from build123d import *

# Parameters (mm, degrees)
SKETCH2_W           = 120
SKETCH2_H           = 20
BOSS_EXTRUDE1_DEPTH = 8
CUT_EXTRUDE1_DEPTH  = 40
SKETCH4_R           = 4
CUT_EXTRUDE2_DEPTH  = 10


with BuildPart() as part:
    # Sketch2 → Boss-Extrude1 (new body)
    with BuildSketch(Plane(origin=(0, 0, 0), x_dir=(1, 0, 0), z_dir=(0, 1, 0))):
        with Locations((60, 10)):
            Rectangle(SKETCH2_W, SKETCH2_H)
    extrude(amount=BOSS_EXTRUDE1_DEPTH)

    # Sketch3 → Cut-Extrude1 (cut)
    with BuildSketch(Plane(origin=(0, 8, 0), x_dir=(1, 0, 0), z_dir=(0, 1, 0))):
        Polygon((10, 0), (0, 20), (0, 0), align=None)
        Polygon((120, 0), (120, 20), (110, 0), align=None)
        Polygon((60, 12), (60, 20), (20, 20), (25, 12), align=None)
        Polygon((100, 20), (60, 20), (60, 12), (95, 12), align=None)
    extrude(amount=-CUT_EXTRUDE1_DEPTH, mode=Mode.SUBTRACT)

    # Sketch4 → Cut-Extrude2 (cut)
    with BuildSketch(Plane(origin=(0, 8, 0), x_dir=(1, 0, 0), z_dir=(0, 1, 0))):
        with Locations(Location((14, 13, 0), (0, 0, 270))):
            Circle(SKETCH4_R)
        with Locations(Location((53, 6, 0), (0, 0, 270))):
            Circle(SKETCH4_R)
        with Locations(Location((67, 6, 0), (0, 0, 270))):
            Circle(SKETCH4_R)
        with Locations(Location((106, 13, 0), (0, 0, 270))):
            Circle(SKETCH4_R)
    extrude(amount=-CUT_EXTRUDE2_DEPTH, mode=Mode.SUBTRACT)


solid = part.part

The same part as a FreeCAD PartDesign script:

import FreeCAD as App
import Part
import Sketcher

V = App.Vector
Q = App.Units.Quantity

doc = App.newDocument("Part")
params = doc.addObject("Spreadsheet::Sheet", "Params")
for row, (alias, value) in enumerate([
    ("sketch1_width", "120 mm"),
    ("sketch1_height", "20 mm"),
    ("pad1_length", "8 mm"),
    ("sketch2_width", "10 mm"),
    ("sketch2_width2", "70 mm"),
    ("sketch2_width3", "80 mm"),
    ("sketch2_height", "20 mm"),
    ("pocket1_length", "40 mm"),
    ("sketch3_diameter", "8 mm"),
    ("pocket2_length", "10 mm"),
], start=1):
    params.set(f"A{row}", alias)
    params.set(f"B{row}", "=" + value)
    params.setAlias(f"B{row}", alias)

body = doc.addObject("PartDesign::Body", "Body")

sketch1 = doc.addObject("Sketcher::SketchObject", "Sketch")
body.addObject(sketch1)
sketch1.AttachmentSupport = (doc.XZ_Plane, [""])
sketch1.MapMode = "FlatFace"
sketch1.addGeometry(Part.LineSegment(V(0, -20, 0), V(0, 0, 0)), False)
sketch1.addGeometry(Part.LineSegment(V(0, 0, 0), V(120, 0, 0)), False)
sketch1.addGeometry(Part.LineSegment(V(120, 0, 0), V(120, -20, 0)), False)
sketch1.addGeometry(Part.LineSegment(V(120, -20, 0), V(0, -20, 0)), False)
sketch1.addConstraint(Sketcher.Constraint("Coincident", 0, 2, 1, 1))
sketch1.addConstraint(Sketcher.Constraint("Coincident", 1, 2, 2, 1))
sketch1.addConstraint(Sketcher.Constraint("Coincident", 2, 2, 3, 1))
sketch1.addConstraint(Sketcher.Constraint("Coincident", 3, 2, 0, 1))
sketch1.addConstraint(Sketcher.Constraint("Vertical", 0))
sketch1.addConstraint(Sketcher.Constraint("Horizontal", 1))
sketch1.addConstraint(Sketcher.Constraint("Vertical", 2))
sketch1.addConstraint(Sketcher.Constraint("Horizontal", 3))
sketch1.addConstraint(Sketcher.Constraint("Coincident", 0, 2, -1, 1))
sketch1.addConstraint(Sketcher.Constraint("DistanceX", 1, 1, 1, 2, Q("120 mm")))
sketch1.addConstraint(Sketcher.Constraint("DistanceY", 0, 1, 0, 2, Q("20 mm")))
sketch1.setExpression("Constraints[9]", "Params.sketch1_width")
sketch1.setExpression("Constraints[10]", "Params.sketch1_height")
pad1 = doc.addObject("PartDesign::Pad", "Pad")
body.addObject(pad1)
pad1.Profile = sketch1
pad1.setExpression("Length", "Params.pad1_length")
pad1.Reversed = True

sketch2 = doc.addObject("Sketcher::SketchObject", "Sketch001")
body.addObject(sketch2)
sketch2.AttachmentSupport = (doc.XZ_Plane, [""])
sketch2.MapMode = "FlatFace"
sketch2.AttachmentOffset = App.Placement(V(0, 0, -8), App.Rotation())
sketch2.addGeometry(Part.LineSegment(V(10, 0, 0), V(0, -20, 0)), False)
sketch2.addGeometry(Part.LineSegment(V(0, -20, 0), V(0, 0, 0)), False)
sketch2.addGeometry(Part.LineSegment(V(0, 0, 0), V(10, 0, 0)), False)
sketch2.addGeometry(Part.LineSegment(V(120, 0, 0), V(120, -20, 0)), False)
sketch2.addGeometry(Part.LineSegment(V(120, -20, 0), V(110, 0, 0)), False)
sketch2.addGeometry(Part.LineSegment(V(110, 0, 0), V(120, 0, 0)), False)
sketch2.addGeometry(Part.LineSegment(V(20, -20, 0), V(25, -12, 0)), False)
sketch2.addGeometry(Part.LineSegment(V(25, -12, 0), V(95, -12, 0)), False)
sketch2.addGeometry(Part.LineSegment(V(95, -12, 0), V(100, -20, 0)), False)
sketch2.addGeometry(Part.LineSegment(V(100, -20, 0), V(20, -20, 0)), False)
sketch2.addConstraint(Sketcher.Constraint("Coincident", 0, 2, 1, 1))
sketch2.addConstraint(Sketcher.Constraint("Coincident", 1, 2, 2, 1))
sketch2.addConstraint(Sketcher.Constraint("Coincident", 2, 2, 0, 1))
sketch2.addConstraint(Sketcher.Constraint("Coincident", 3, 2, 4, 1))
sketch2.addConstraint(Sketcher.Constraint("Coincident", 4, 2, 5, 1))
sketch2.addConstraint(Sketcher.Constraint("Coincident", 5, 2, 3, 1))
sketch2.addConstraint(Sketcher.Constraint("Coincident", 6, 2, 7, 1))
sketch2.addConstraint(Sketcher.Constraint("Coincident", 7, 2, 8, 1))
sketch2.addConstraint(Sketcher.Constraint("Coincident", 8, 2, 9, 1))
sketch2.addConstraint(Sketcher.Constraint("Coincident", 9, 2, 6, 1))
sketch2.addConstraint(Sketcher.Constraint("Vertical", 1))
sketch2.addConstraint(Sketcher.Constraint("Horizontal", 2))
sketch2.addConstraint(Sketcher.Constraint("Vertical", 3))
sketch2.addConstraint(Sketcher.Constraint("Horizontal", 5))
sketch2.addConstraint(Sketcher.Constraint("Horizontal", 7))
sketch2.addConstraint(Sketcher.Constraint("Horizontal", 9))
sketch2.addConstraint(Sketcher.Constraint("Coincident", 1, 2, -1, 1))
sketch2.addConstraint(Sketcher.Constraint("PointOnObject", 4, 2, -1))
sketch2.addConstraint(Sketcher.Constraint("Horizontal", 0, 2, 3, 2))
sketch2.addConstraint(Sketcher.Constraint("Horizontal", 3, 2, 8, 2))
sketch2.addConstraint(Sketcher.Constraint("Equal", 2, 5))
sketch2.addConstraint(Sketcher.Constraint("Equal", 6, 8))
sketch2.addConstraint(Sketcher.Constraint("DistanceX", 2, 1, 2, 2, Q("10 mm")))
sketch2.addConstraint(Sketcher.Constraint("DistanceX", 7, 1, 7, 2, Q("70 mm")))
sketch2.addConstraint(Sketcher.Constraint("DistanceX", 9, 2, 9, 1, Q("80 mm")))
sketch2.addConstraint(Sketcher.Constraint("DistanceY", 1, 1, 1, 2, Q("20 mm")))
sketch2.addConstraint(Sketcher.Constraint("DistanceX", -1, 1, 3, 2, Q("120 mm")))
sketch2.addConstraint(Sketcher.Constraint("DistanceX", -1, 1, 6, 2, Q("25 mm")))
sketch2.addConstraint(Sketcher.Constraint("DistanceY", 6, 2, -1, 1, Q("12 mm")))
sketch2.setExpression("Constraints[22]", "Params.sketch2_width")
sketch2.setExpression("Constraints[23]", "Params.sketch2_width2")
sketch2.setExpression("Constraints[24]", "Params.sketch2_width3")
sketch2.setExpression("Constraints[25]", "Params.sketch2_height")
pocket1 = doc.addObject("PartDesign::Pocket", "Pocket")
body.addObject(pocket1)
pocket1.Profile = sketch2
pocket1.setExpression("Length", "Params.pocket1_length")
pocket1.Reversed = True

sketch3 = doc.addObject("Sketcher::SketchObject", "Sketch002")
body.addObject(sketch3)
sketch3.AttachmentSupport = (doc.XZ_Plane, [""])
sketch3.MapMode = "FlatFace"
sketch3.AttachmentOffset = App.Placement(V(0, 0, -8), App.Rotation())
sketch3.addGeometry(Part.Circle(V(14, -13, 0), V(0, 0, 1), 4), False)
sketch3.addGeometry(Part.Circle(V(53, -6, 0), V(0, 0, 1), 4), False)
sketch3.addGeometry(Part.Circle(V(67, -6, 0), V(0, 0, 1), 4), False)
sketch3.addGeometry(Part.Circle(V(106, -13, 0), V(0, 0, 1), 4), False)
sketch3.addConstraint(Sketcher.Constraint("Equal", 0, 1))
sketch3.addConstraint(Sketcher.Constraint("Equal", 1, 2))
sketch3.addConstraint(Sketcher.Constraint("Equal", 2, 3))
sketch3.addConstraint(Sketcher.Constraint("Horizontal", 1, 3, 2, 3))
sketch3.addConstraint(Sketcher.Constraint("Horizontal", 0, 3, 3, 3))
sketch3.addConstraint(Sketcher.Constraint("Diameter", 0, Q("8 mm")))
sketch3.addConstraint(Sketcher.Constraint("DistanceX", -1, 1, 0, 3, Q("14 mm")))
sketch3.addConstraint(Sketcher.Constraint("DistanceY", 0, 3, -1, 1, Q("13 mm")))
sketch3.addConstraint(Sketcher.Constraint("DistanceX", -1, 1, 1, 3, Q("53 mm")))
sketch3.addConstraint(Sketcher.Constraint("DistanceY", 1, 3, -1, 1, Q("6 mm")))
sketch3.addConstraint(Sketcher.Constraint("DistanceX", -1, 1, 2, 3, Q("67 mm")))
sketch3.addConstraint(Sketcher.Constraint("DistanceX", -1, 1, 3, 3, Q("106 mm")))
sketch3.setExpression("Constraints[5]", "Params.sketch3_diameter")
pocket2 = doc.addObject("PartDesign::Pocket", "Pocket001")
body.addObject(pocket2)
pocket2.Profile = sketch3
pocket2.setExpression("Length", "Params.pocket2_length")
pocket2.Reversed = True

doc.recompute()
